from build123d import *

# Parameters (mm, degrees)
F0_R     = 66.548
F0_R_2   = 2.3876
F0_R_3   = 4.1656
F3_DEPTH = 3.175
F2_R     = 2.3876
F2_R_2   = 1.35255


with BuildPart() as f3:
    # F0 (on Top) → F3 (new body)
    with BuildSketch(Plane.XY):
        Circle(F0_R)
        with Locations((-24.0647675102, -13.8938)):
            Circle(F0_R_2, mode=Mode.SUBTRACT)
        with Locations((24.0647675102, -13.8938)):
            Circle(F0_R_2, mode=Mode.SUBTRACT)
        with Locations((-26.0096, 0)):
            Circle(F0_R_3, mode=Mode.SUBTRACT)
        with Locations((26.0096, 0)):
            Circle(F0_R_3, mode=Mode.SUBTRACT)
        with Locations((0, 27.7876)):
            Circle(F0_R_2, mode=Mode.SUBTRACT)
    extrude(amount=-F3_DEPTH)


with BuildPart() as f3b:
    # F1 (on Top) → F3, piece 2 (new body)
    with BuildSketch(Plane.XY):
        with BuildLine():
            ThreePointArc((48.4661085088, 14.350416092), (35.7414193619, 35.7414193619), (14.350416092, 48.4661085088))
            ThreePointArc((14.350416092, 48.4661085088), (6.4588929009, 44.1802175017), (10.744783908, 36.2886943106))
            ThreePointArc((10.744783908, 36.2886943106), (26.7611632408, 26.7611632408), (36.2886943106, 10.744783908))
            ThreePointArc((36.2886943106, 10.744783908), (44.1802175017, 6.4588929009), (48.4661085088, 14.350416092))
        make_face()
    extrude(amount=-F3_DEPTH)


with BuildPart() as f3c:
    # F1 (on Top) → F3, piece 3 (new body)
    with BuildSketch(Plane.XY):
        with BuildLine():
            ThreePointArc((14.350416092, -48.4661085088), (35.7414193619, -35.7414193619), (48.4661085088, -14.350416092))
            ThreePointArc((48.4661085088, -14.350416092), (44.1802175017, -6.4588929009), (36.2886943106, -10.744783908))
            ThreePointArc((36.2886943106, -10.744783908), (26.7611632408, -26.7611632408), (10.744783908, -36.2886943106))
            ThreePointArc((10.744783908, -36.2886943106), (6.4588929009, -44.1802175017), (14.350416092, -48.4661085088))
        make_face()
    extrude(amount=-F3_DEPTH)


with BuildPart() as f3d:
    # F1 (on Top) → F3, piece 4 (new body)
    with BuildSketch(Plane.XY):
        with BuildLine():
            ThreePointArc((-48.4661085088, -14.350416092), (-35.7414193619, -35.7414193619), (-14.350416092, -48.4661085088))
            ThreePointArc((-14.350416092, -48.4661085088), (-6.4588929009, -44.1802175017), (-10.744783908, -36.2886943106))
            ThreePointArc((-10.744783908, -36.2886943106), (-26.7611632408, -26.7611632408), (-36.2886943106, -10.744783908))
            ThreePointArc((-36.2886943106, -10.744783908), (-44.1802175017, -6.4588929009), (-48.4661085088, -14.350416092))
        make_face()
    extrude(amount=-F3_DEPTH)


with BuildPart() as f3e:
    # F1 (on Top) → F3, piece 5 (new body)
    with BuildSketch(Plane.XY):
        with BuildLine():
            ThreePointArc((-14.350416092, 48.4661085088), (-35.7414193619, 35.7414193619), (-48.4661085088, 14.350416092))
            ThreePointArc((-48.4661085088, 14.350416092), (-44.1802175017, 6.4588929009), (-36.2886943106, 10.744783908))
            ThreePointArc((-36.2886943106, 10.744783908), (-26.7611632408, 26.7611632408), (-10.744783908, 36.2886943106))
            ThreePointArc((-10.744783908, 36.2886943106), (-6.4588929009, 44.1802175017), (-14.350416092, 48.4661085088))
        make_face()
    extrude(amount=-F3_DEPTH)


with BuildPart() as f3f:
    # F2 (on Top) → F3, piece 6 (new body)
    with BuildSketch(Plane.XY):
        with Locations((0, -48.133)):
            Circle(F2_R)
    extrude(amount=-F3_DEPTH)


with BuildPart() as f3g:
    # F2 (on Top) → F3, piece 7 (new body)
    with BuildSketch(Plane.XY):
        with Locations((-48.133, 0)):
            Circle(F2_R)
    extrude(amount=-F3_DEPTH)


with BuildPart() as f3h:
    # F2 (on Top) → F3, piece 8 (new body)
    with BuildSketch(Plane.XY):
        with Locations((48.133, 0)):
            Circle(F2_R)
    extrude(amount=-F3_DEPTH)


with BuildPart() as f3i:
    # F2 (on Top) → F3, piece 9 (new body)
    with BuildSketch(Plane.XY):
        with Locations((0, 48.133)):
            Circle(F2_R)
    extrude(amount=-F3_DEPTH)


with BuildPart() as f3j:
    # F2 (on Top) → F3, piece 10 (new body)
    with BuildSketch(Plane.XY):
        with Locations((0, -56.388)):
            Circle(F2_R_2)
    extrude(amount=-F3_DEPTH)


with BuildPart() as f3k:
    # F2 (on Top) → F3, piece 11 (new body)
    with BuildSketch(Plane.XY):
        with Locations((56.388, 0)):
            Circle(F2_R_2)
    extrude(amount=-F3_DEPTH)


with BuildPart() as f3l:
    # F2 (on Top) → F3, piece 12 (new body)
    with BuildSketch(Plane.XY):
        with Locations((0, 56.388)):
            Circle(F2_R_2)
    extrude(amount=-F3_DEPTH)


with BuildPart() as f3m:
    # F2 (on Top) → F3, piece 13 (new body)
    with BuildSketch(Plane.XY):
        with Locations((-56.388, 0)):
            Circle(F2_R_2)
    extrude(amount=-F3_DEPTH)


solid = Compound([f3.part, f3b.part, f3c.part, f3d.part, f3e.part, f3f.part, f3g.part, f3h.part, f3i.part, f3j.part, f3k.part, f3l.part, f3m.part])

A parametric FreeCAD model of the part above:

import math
import FreeCAD as App
import Part
import Sketcher

V = App.Vector
Q = App.Units.Quantity

doc = App.newDocument("Part")
body = doc.addObject("PartDesign::Body", "Body")

sketch1 = body.newObject("Sketcher::SketchObject", "Sketch")
sketch1.AttachmentSupport = (doc.getObject("XY_Plane"), [""])
sketch1.MapMode = "FlatFace"
sketch1.addGeometry([
    Part.Circle(V(0, 0, 0), V(0, 0, 1), 66.548),
    Part.Circle(V(-24.064768, -13.8938, 0), V(0, 0, 1), 2.3876),
    Part.Circle(V(-26.0096, 0, 0), V(0, 0, 1), 4.1656),
    Part.Circle(V(24.064768, -13.8938, 0), V(0, 0, 1), 2.3876),
    Part.Circle(V(26.0096, 0, 0), V(0, 0, 1), 4.1656),
    Part.Circle(V(0, 27.7876, 0), V(0, 0, 1), 2.3876),
], False)
sketch1.addConstraint([
    Sketcher.Constraint("Coincident", 0, 3, -1, 1),
    Sketcher.Constraint("Equal", 1, 3),
    Sketcher.Constraint("Equal", 2, 4),
    Sketcher.Constraint("Equal", 3, 5),
    Sketcher.Constraint("Symmetric", 2, 3, 4, 3, -1, 1),
    Sketcher.Constraint("Symmetric", 1, 3, 3, 3, -2),
    Sketcher.Constraint("PointOnObject", 2, 3, -1),
    Sketcher.Constraint("PointOnObject", 5, 3, -2),
    Sketcher.Constraint("Diameter", 0, Q("5.24 in")),
    Sketcher.Constraint("Diameter", 1, Q("0.188 in")),
    Sketcher.Constraint("Diameter", 2, Q("0.328 in")),
    Sketcher.Constraint("DistanceY", 1, 3, -1, 1, Q("0.547 in")),
    Sketcher.Constraint("DistanceX", 2, 3, -1, 1, Q("1.024 in")),
    Sketcher.Constraint("DistanceY", -1, 1, 5, 3, Q("1.094 in")),
    Sketcher.Constraint("DistanceX", 1, 3, -1, 1, Q("24.064768 mm")),
])
pad1 = body.newObject("PartDesign::Pad", "Pad")
pad1.Profile = sketch1
pad1.Length = Q("0.125 in")
pad1.Reversed = True
body2 = doc.addObject("PartDesign::Body", "Body001")

sketch2 = body2.newObject("Sketcher::SketchObject", "Sketch001")
sketch2.AttachmentSupport = (doc.getObject("XY_Plane001"), [""])
sketch2.MapMode = "FlatFace"
sketch2.addGeometry([
    Part.ArcOfCircle(Part.Circle(V(0, 0, 0), V(0, 0, 1), 50.546), math.radians(16.493588), math.radians(73.506412)),
    Part.ArcOfCircle(Part.Circle(V(12.5476, 42.377401, 0), V(0, 0, 1), 6.35), math.radians(73.506412), math.radians(253.506412)),
    Part.ArcOfCircle(Part.Circle(V(0, 0, 0), V(0, 0, 1), 37.846), math.radians(16.493588), math.radians(73.506412)),
    Part.ArcOfCircle(Part.Circle(V(42.377401, 12.5476, 0), V(0, 0, 1), 6.35), math.radians(-163.506412), math.radians(16.493588)),
], False)
sketch2.addConstraint([
    Sketcher.Constraint("Tangent", 0, 2, 1, 1),
    Sketcher.Constraint("Tangent", 1, 2, 2, 2),
    Sketcher.Constraint("Tangent", 2, 1, 3, 1),
    Sketcher.Constraint("Tangent", 3, 2, 0, 1),
    Sketcher.Constraint("Coincident", 0, 3, -1, 1),
    Sketcher.Constraint("Coincident", 2, 3, -1, 1),
    Sketcher.Constraint("Radius", 0, Q("1.99 in")),
    Sketcher.Constraint("Radius", 1, Q("0.25 in")),
    Sketcher.Constraint("DistanceX", -1, 1, 1, 3, Q("0.494 in")),
    Sketcher.Constraint("DistanceY", -1, 1, 3, 3, Q("0.494 in")),
])
pad2 = body2.newObject("PartDesign::Pad", "Pad001")
pad2.Profile = sketch2
pad2.Length = Q("0.125 in")
pad2.Reversed = True
body3 = doc.addObject("PartDesign::Body", "Body002")

sketch3 = body3.newObject("Sketcher::SketchObject", "Sketch002")
sketch3.AttachmentSupport = (doc.getObject("XY_Plane002"), [""])
sketch3.MapMode = "FlatFace"
sketch3.addGeometry([
    Part.ArcOfCircle(Part.Circle(V(0, 0, 0), V(0, 0, 1), 50.546), math.radians(-73.506412), math.radians(-16.493588)),
    Part.ArcOfCircle(Part.Circle(V(42.377401, -12.5476, 0), V(0, 0, 1), 6.35), math.radians(-16.493588), math.radians(163.506412)),
    Part.ArcOfCircle(Part.Circle(V(0, 0, 0), V(0, 0, 1), 37.846), math.radians(-73.506412), math.radians(-16.493588)),
    Part.ArcOfCircle(Part.Circle(V(12.5476, -42.377401, 0), V(0, 0, 1), 6.35), math.radians(106.493588), math.radians(286.493588)),
], False)
sketch3.addConstraint([
    Sketcher.Constraint("Tangent", 0, 2, 1, 1),
    Sketcher.Constraint("Tangent", 1, 2, 2, 2),
    Sketcher.Constraint("Tangent", 2, 1, 3, 1),
    Sketcher.Constraint("Tangent", 3, 2, 0, 1),
    Sketcher.Constraint("Coincident", 0, 3, -1, 1),
    Sketcher.Constraint("Coincident", 2, 3, -1, 1),
    Sketcher.Constraint("Radius", 0, Q("1.99 in")),
    Sketcher.Constraint("Radius", 1, Q("0.25 in")),
    Sketcher.Constraint("DistanceY", 1, 3, -1, 1, Q("0.494 in")),
    Sketcher.Constraint("DistanceX", -1, 1, 3, 3, Q("0.494 in")),
])
pad3 = body3.newObject("PartDesign::Pad", "Pad002")
pad3.Profile = sketch3
pad3.Length = Q("0.125 in")
pad3.Reversed = True
body4 = doc.addObject("PartDesign::Body", "Body003")

sketch4 = body4.newObject("Sketcher::SketchObject", "Sketch003")
sketch4.AttachmentSupport = (doc.getObject("XY_Plane003"), [""])
sketch4.MapMode = "FlatFace"
sketch4.addGeometry([
    Part.ArcOfCircle(Part.Circle(V(0, 0, 0), V(0, 0, 1), 50.546), math.radians(-163.506412), math.radians(-106.493588)),
    Part.ArcOfCircle(Part.Circle(V(-12.5476, -42.377401, 0), V(0, 0, 1), 6.35), math.radians(-106.493588), math.radians(73.506412)),
    Part.ArcOfCircle(Part.Circle(V(0, 0, 0), V(0, 0, 1), 37.846), math.radians(-163.506412), math.radians(-106.493588)),
    Part.ArcOfCircle(Part.Circle(V(-42.377401, -12.5476, 0), V(0, 0, 1), 6.35), math.radians(16.493588), math.radians(196.493588)),
], False)
sketch4.addConstraint([
    Sketcher.Constraint("Tangent", 0, 2, 1, 1),
    Sketcher.Constraint("Tangent", 1, 2, 2, 2),
    Sketcher.Constraint("Tangent", 2, 1, 3, 1),
    Sketcher.Constraint("Tangent", 3, 2, 0, 1),
    Sketcher.Constraint("Coincident", 0, 3, -1, 1),
    Sketcher.Constraint("Coincident", 2, 3, -1, 1),
    Sketcher.Constraint("Radius", 0, Q("1.99 in")),
    Sketcher.Constraint("Radius", 1, Q("0.25 in")),
    Sketcher.Constraint("DistanceX", 1, 3, -1, 1, Q("0.494 in")),
    Sketcher.Constraint("DistanceY", 3, 3, -1, 1, Q("0.494 in")),
])
pad4 = body4.newObject("PartDesign::Pad", "Pad003")
pad4.Profile = sketch4
pad4.Length = Q("0.125 in")
pad4.Reversed = True
body5 = doc.addObject("PartDesign::Body", "Body004")

sketch5 = body5.newObject("Sketcher::SketchObject", "Sketch004")
sketch5.AttachmentSupport = (doc.getObject("XY_Plane004"), [""])
sketch5.MapMode = "FlatFace"
sketch5.addGeometry([
    Part.ArcOfCircle(Part.Circle(V(0, 0, 0), V(0, 0, 1), 50.546), math.radians(106.493588), math.radians(163.506412)),
    Part.ArcOfCircle(Part.Circle(V(-42.377401, 12.5476, 0), V(0, 0, 1), 6.35), math.radians(163.506412), math.radians(343.506412)),
    Part.ArcOfCircle(Part.Circle(V(0, 0, 0), V(0, 0, 1), 37.846), math.radians(106.493588), math.radians(163.506412)),
    Part.ArcOfCircle(Part.Circle(V(-12.5476, 42.377401, 0), V(0, 0, 1), 6.35), math.radians(-73.506412), math.radians(106.493588)),
], False)
sketch5.addConstraint([
    Sketcher.Constraint("Tangent", 0, 2, 1, 1),
    Sketcher.Constraint("Tangent", 1, 2, 2, 2),
    Sketcher.Constraint("Tangent", 2, 1, 3, 1),
    Sketcher.Constraint("Tangent", 3, 2, 0, 1),
    Sketcher.Constraint("Coincident", 0, 3, -1, 1),
    Sketcher.Constraint("Coincident", 2, 3, -1, 1),
    Sketcher.Constraint("Radius", 0, Q("1.99 in")),
    Sketcher.Constraint("Radius", 1, Q("0.25 in")),
    Sketcher.Constraint("DistanceY", -1, 1, 1, 3, Q("0.494 in")),
    Sketcher.Constraint("DistanceX", 3, 3, -1, 1, Q("0.494 in")),
])
pad5 = body5.newObject("PartDesign::Pad", "Pad004")
pad5.Profile = sketch5
pad5.Length = Q("0.125 in")
pad5.Reversed = True
body6 = doc.addObject("PartDesign::Body", "Body005")

sketch6 = body6.newObject("Sketcher::SketchObject", "Sketch005")
sketch6.AttachmentSupport = (doc.getObject("XY_Plane005"), [""])
sketch6.MapMode = "FlatFace"
sketch6.addGeometry(Part.Circle(V(0, -48.133, 0), V(0, 0, 1), 2.3876), False)
sketch6.addConstraint([
    Sketcher.Constraint("PointOnObject", 0, 3, -2),
    Sketcher.Constraint("Diameter", 0, Q("0.188 in")),
    Sketcher.Constraint("DistanceY", 0, 3, -1, 1, Q("1.895 in")),
])
pad6 = body6.newObject("PartDesign::Pad", "Pad005")
pad6.Profile = sketch6
pad6.Length = Q("0.125 in")
pad6.Reversed = True
body7 = doc.addObject("PartDesign::Body", "Body006")

sketch7 = body7.newObject("Sketcher::SketchObject", "Sketch006")
sketch7.AttachmentSupport = (doc.getObject("XY_Plane006"), [""])
sketch7.MapMode = "FlatFace"
sketch7.addGeometry(Part.Circle(V(-48.133, 0, 0), V(0, 0, 1), 2.3876), False)
sketch7.addConstraint([
    Sketcher.Constraint("PointOnObject", 0, 3, -1),
    Sketcher.Constraint("Diameter", 0, Q("0.188 in")),
    Sketcher.Constraint("DistanceX", 0, 3, -1, 1, Q("1.895 in")),
])
pad7 = body7.newObject("PartDesign::Pad", "Pad006")
pad7.Profile = sketch7
pad7.Length = Q("0.125 in")
pad7.Reversed = True
body8 = doc.addObject("PartDesign::Body", "Body007")

sketch8 = body8.newObject("Sketcher::SketchObject", "Sketch007")
sketch8.AttachmentSupport = (doc.getObject("XY_Plane007"), [""])
sketch8.MapMode = "FlatFace"
sketch8.addGeometry(Part.Circle(V(48.133, 0, 0), V(0, 0, 1), 2.3876), False)
sketch8.addConstraint([
    Sketcher.Constraint("PointOnObject", 0, 3, -1),
    Sketcher.Constraint("Diameter", 0, Q("0.188 in")),
    Sketcher.Constraint("DistanceX", -1, 1, 0, 3, Q("1.895 in")),
])
pad8 = body8.newObject("PartDesign::Pad", "Pad007")
pad8.Profile = sketch8
pad8.Length = Q("0.125 in")
pad8.Reversed = True
body9 = doc.addObject("PartDesign::Body", "Body008")

sketch9 = body9.newObject("Sketcher::SketchObject", "Sketch008")
sketch9.AttachmentSupport = (doc.getObject("XY_Plane008"), [""])
sketch9.MapMode = "FlatFace"
sketch9.addGeometry(Part.Circle(V(0, 48.133, 0), V(0, 0, 1), 2.3876), False)
sketch9.addConstraint([
    Sketcher.Constraint("PointOnObject", 0, 3, -2),
    Sketcher.Constraint("Diameter", 0, Q("0.188 in")),
    Sketcher.Constraint("DistanceY", -1, 1, 0, 3, Q("1.895 in")),
])
pad9 = body9.newObject("PartDesign::Pad", "Pad008")
pad9.Profile = sketch9
pad9.Length = Q("0.125 in")
pad9.Reversed = True
body10 = doc.addObject("PartDesign::Body", "Body009")

sketch10 = body10.newObject("Sketcher::SketchObject", "Sketch009")
sketch10.AttachmentSupport = (doc.getObject("XY_Plane009"), [""])
sketch10.MapMode = "FlatFace"
sketch10.addGeometry(Part.Circle(V(0, -56.388, 0), V(0, 0, 1), 1.35255), False)
sketch10.addConstraint([
    Sketcher.Constraint("PointOnObject", 0, 3, -2),
    Sketcher.Constraint("Diameter", 0, Q("0.1065 in")),
    Sketcher.Constraint("DistanceY", 0, 3, -1, 1, Q("2.22 in")),
])
pad10 = body10.newObject("PartDesign::Pad", "Pad009")
pad10.Profile = sketch10
pad10.Length = Q("0.125 in")
pad10.Reversed = True
body11 = doc.addObject("PartDesign::Body", "Body010")

sketch11 = body11.newObject("Sketcher::SketchObject", "Sketch010")
sketch11.AttachmentSupport = (doc.getObject("XY_Plane010"), [""])
sketch11.MapMode = "FlatFace"
sketch11.addGeometry(Part.Circle(V(56.388, 0, 0), V(0, 0, 1), 1.35255), False)
sketch11.addConstraint([
    Sketcher.Constraint("PointOnObject", 0, 3, -1),
    Sketcher.Constraint("Diameter", 0, Q("0.1065 in")),
    Sketcher.Constraint("DistanceX", -1, 1, 0, 3, Q("2.22 in")),
])
pad11 = body11.newObject("PartDesign::Pad", "Pad010")
pad11.Profile = sketch11
pad11.Length = Q("0.125 in")
pad11.Reversed = True
body12 = doc.addObject("PartDesign::Body", "Body011")

sketch12 = body12.newObject("Sketcher::SketchObject", "Sketch011")
sketch12.AttachmentSupport = (doc.getObject("XY_Plane011"), [""])
sketch12.MapMode = "FlatFace"
sketch12.addGeometry(Part.Circle(V(0, 56.388, 0), V(0, 0, 1), 1.35255), False)
sketch12.addConstraint([
    Sketcher.Constraint("PointOnObject", 0, 3, -2),
    Sketcher.Constraint("Diameter", 0, Q("0.1065 in")),
    Sketcher.Constraint("DistanceY", -1, 1, 0, 3, Q("2.22 in")),
])
pad12 = body12.newObject("PartDesign::Pad", "Pad011")
pad12.Profile = sketch12
pad12.Length = Q("0.125 in")
pad12.Reversed = True
body13 = doc.addObject("PartDesign::Body", "Body012")

sketch13 = body13.newObject("Sketcher::SketchObject", "Sketch012")
sketch13.AttachmentSupport = (doc.getObject("XY_Plane012"), [""])
sketch13.MapMode = "FlatFace"
sketch13.addGeometry(Part.Circle(V(-56.388, 0, 0), V(0, 0, 1), 1.35255), False)
sketch13.addConstraint([
    Sketcher.Constraint("PointOnObject", 0, 3, -1),
    Sketcher.Constraint("Diameter", 0, Q("0.1065 in")),
    Sketcher.Constraint("DistanceX", 0, 3, -1, 1, Q("2.22 in")),
])
pad13 = body13.newObject("PartDesign::Pad", "Pad012")
pad13.Profile = sketch13
pad13.Length = Q("0.125 in")
pad13.Reversed = True

doc.recompute()
